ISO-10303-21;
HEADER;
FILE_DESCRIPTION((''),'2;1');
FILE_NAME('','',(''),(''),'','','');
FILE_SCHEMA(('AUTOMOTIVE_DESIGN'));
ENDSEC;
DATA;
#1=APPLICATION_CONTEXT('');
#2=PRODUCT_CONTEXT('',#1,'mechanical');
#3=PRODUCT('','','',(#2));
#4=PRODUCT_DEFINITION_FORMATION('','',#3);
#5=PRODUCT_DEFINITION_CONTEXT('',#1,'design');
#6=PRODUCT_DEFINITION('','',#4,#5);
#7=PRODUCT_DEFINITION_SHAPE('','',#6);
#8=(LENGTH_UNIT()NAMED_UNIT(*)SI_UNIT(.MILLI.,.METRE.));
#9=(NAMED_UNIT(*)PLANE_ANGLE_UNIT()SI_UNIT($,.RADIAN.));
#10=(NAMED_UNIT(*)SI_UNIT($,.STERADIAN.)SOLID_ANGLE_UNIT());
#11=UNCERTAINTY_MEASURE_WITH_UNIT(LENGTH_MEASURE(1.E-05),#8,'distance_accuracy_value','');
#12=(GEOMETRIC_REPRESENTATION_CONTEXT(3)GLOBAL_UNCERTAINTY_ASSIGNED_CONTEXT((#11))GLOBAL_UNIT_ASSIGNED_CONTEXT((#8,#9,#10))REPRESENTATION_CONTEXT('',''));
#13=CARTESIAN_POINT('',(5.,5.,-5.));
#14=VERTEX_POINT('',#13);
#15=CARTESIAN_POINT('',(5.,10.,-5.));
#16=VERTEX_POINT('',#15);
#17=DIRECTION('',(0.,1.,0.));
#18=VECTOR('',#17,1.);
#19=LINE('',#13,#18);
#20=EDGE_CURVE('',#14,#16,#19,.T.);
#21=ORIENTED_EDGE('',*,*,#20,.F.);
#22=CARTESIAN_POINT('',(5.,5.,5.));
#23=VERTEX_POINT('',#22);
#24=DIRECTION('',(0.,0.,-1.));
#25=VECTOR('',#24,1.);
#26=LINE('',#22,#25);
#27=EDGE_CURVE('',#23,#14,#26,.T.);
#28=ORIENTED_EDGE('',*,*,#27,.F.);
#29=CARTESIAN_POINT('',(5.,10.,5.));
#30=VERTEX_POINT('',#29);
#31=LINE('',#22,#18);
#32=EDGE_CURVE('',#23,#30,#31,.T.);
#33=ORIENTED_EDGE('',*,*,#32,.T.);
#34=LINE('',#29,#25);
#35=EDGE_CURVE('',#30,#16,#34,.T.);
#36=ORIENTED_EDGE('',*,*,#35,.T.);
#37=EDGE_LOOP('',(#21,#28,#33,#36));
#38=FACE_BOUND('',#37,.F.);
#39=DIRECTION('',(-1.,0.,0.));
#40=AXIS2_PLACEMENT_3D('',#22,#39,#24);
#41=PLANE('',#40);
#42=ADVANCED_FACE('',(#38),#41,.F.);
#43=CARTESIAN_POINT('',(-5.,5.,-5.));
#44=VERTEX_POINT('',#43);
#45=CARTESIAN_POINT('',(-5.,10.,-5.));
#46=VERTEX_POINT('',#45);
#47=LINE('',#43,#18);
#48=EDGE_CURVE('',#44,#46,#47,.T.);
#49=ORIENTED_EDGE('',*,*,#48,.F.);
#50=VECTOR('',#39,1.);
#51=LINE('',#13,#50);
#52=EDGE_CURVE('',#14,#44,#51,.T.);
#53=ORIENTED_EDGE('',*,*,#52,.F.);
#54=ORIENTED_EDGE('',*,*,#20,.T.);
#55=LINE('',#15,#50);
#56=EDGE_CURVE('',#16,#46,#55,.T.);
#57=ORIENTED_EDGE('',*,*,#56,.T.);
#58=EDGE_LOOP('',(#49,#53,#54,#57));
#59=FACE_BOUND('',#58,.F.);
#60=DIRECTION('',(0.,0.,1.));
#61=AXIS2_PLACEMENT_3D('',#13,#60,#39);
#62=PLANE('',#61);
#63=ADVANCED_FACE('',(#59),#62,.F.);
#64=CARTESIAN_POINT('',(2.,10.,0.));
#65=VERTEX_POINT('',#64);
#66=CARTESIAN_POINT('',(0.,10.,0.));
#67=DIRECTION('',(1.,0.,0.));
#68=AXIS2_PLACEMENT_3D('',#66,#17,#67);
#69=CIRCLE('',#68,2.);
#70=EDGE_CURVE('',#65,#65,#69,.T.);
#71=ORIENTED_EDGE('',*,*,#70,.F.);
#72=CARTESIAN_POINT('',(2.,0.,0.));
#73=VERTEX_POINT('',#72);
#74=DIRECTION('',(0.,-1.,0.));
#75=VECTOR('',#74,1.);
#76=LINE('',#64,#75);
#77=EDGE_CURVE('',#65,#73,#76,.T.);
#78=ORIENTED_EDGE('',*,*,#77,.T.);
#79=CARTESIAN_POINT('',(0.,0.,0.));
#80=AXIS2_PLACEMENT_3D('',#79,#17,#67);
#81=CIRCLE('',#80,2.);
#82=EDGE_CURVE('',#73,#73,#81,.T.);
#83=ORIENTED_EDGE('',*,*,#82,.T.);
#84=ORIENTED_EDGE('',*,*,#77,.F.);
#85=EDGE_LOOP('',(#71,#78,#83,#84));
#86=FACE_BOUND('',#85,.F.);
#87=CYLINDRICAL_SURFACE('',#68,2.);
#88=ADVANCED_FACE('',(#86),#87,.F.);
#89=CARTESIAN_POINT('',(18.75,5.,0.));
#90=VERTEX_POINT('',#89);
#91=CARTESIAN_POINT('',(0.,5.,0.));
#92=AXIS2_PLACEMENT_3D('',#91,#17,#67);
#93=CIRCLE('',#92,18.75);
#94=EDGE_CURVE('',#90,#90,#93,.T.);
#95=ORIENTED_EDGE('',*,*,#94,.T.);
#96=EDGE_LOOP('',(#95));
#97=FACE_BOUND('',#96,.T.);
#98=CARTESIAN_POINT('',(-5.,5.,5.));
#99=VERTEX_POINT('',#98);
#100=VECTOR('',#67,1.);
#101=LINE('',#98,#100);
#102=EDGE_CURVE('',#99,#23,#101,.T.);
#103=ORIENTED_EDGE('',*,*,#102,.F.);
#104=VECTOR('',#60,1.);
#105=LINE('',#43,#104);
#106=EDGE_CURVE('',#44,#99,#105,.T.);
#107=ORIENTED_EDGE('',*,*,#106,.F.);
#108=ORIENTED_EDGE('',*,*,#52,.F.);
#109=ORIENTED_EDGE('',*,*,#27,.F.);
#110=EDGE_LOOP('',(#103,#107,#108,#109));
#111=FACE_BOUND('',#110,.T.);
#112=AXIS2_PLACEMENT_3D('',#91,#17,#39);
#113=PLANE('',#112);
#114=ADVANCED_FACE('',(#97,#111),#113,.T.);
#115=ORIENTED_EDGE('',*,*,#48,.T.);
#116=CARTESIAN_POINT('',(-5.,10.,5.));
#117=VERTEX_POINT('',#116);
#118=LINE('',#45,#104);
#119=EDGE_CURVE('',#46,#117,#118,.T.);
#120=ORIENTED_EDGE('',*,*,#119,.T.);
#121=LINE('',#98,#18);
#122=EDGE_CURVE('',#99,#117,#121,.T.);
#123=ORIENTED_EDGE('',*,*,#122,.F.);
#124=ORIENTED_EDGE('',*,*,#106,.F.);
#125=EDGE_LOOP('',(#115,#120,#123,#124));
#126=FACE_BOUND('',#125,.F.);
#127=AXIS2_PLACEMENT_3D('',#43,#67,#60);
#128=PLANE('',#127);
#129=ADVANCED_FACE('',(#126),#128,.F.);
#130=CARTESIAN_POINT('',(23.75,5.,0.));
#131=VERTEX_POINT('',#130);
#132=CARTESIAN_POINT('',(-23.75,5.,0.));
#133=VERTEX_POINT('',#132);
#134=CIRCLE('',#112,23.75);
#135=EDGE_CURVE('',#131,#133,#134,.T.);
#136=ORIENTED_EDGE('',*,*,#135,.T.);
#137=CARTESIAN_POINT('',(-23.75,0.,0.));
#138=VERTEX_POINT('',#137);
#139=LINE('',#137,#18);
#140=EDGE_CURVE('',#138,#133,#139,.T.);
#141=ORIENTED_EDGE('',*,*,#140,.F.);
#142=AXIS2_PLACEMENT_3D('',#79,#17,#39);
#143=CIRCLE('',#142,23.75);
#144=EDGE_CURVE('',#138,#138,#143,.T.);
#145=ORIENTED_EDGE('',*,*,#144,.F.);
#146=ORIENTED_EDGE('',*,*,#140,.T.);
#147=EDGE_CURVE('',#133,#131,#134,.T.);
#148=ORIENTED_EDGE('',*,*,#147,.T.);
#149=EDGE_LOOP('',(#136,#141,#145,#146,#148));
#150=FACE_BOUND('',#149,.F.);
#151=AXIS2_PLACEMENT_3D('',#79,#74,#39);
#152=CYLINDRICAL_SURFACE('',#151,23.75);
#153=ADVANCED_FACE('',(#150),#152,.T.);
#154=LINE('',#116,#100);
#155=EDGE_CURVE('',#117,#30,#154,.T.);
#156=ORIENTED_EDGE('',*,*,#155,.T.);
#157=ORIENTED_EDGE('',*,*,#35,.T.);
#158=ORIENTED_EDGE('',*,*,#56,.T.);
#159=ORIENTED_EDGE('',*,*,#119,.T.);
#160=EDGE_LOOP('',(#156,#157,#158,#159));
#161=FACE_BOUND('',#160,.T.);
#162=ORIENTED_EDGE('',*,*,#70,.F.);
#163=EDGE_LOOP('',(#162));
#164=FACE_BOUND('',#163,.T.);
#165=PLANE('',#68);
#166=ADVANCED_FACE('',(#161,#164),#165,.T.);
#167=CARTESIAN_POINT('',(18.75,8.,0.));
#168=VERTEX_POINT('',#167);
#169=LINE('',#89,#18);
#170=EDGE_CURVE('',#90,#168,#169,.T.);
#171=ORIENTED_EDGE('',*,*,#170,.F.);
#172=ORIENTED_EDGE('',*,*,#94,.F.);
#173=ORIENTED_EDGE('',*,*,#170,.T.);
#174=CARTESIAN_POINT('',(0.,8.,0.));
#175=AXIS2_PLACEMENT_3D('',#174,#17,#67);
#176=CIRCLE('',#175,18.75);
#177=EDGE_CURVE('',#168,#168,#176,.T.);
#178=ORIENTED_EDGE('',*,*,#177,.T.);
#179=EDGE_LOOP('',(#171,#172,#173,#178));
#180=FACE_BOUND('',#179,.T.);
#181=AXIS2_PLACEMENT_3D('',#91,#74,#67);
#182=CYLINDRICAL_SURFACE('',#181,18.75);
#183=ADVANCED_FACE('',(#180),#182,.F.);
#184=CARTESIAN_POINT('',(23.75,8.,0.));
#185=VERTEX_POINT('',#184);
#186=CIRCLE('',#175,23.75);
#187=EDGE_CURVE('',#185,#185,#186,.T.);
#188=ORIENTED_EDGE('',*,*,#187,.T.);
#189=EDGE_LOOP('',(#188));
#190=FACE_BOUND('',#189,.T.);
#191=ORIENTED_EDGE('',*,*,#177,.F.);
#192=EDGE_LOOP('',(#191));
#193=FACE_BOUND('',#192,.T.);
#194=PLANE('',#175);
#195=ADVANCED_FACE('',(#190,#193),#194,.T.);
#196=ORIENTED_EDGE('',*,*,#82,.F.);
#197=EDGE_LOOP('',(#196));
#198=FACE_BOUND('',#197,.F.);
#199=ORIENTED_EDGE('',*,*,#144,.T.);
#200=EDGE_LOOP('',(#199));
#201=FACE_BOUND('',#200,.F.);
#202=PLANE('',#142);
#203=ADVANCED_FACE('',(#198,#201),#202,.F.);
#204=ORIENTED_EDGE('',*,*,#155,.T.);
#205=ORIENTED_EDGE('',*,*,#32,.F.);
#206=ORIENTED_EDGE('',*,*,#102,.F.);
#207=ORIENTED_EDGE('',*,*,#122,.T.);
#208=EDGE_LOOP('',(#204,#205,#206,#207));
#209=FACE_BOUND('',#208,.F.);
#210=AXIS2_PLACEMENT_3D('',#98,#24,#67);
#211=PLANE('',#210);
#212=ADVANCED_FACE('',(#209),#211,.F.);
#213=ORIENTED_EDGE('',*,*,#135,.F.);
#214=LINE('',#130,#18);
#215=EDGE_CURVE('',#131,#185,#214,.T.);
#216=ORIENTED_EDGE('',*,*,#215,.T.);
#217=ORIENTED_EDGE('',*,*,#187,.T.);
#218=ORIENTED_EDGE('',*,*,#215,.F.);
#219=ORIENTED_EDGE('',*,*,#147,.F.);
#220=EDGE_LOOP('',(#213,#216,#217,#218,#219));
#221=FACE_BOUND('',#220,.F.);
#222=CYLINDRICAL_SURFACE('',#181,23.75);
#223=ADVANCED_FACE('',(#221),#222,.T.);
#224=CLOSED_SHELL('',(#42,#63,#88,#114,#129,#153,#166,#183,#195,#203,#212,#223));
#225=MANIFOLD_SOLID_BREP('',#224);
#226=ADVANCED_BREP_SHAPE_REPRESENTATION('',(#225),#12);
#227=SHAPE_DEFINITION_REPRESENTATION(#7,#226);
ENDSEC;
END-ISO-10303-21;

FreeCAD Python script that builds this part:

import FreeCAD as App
import Part
import Sketcher

V = App.Vector
Q = App.Units.Quantity


def add_polygon(sketch, points):
    """Adds a closed chain of lines whose ends are joined by coincident constraints."""
    first, n = sketch.GeometryCount, len(points)
    for a, b in zip(points, points[1:] + points[:1]):
        sketch.addGeometry(Part.LineSegment(App.Vector(*a, 0), App.Vector(*b, 0)), False)
    for i in range(n):
        sketch.addConstraint(Sketcher.Constraint("Coincident", first + i, 2, first + (i + 1) % n, 1))

doc = App.newDocument("Part")
body = doc.addObject("PartDesign::Body", "Body")

sketch1 = body.newObject("Sketcher::SketchObject", "Sketch")
sketch1.AttachmentSupport = (doc.getObject("XZ_Plane"), [""])
sketch1.MapMode = "FlatFace"
sketch1.addGeometry(Part.Circle(V(0, 0, 0), V(0, 0, 1), 24), False)
sketch1.addConstraint([
    Sketcher.Constraint("Coincident", 0, 3, -1, 1),
    Sketcher.Constraint("Diameter", 0, Q("47.5 mm")),
])
pad1 = body.newObject("PartDesign::Pad", "Pad")
pad1.Profile = sketch1
pad1.Length = 5
pad1.Reversed = True

sketch2 = body.newObject("Sketcher::SketchObject", "Sketch001")
sketch2.AttachmentSupport = (doc.getObject("XZ_Plane"), [""])
sketch2.MapMode = "FlatFace"
sketch2.AttachmentOffset = App.Placement(V(0, 0, -5), App.Rotation())
add_polygon(sketch2, [(-5, -5), (-5, 5), (5, 5), (5, -5)])
sketch2.addConstraint([
    Sketcher.Constraint("Vertical", 0),
    Sketcher.Constraint("Horizontal", 1),
    Sketcher.Constraint("Vertical", 2),
    Sketcher.Constraint("Horizontal", 3),
    Sketcher.Constraint("Symmetric", 0, 2, 2, 2, -1, 1),
    Sketcher.Constraint("Equal", 3, 0),
    Sketcher.Constraint("DistanceX", 1, 1, 1, 2, Q("10 mm")),
])
pad2 = body.newObject("PartDesign::Pad", "Pad001")
pad2.Profile = sketch2
pad2.Length = 5
pad2.Reversed = True

sketch3 = body.newObject("Sketcher::SketchObject", "Sketch002")
sketch3.AttachmentSupport = (doc.getObject("XZ_Plane"), [""])
sketch3.MapMode = "FlatFace"
sketch3.AttachmentOffset = App.Placement(V(0, 0, -5), App.Rotation())
sketch3.addGeometry([
    Part.Circle(V(0, 0, 0), V(0, 0, 1), 24),
    Part.Circle(V(0, 0, 0), V(0, 0, 1), 19),
], False)
sketch3.addConstraint([
    Sketcher.Constraint("Coincident", 0, 3, -1, 1),
    Sketcher.Constraint("Coincident", 1, 3, -1, 1),
    Sketcher.Constraint("Diameter", 0, Q("47.5 mm")),
    Sketcher.Constraint("Diameter", 1, Q("37.5 mm")),
])
pad3 = body.newObject("PartDesign::Pad", "Pad002")
pad3.Profile = sketch3
pad3.Length = 3
pad3.Reversed = True

sketch4 = body.newObject("Sketcher::SketchObject", "Sketch003")
sketch4.AttachmentSupport = (doc.getObject("XZ_Plane"), [""])
sketch4.MapMode = "FlatFace"
sketch4.AttachmentOffset = App.Placement(V(0, 0, -10), App.Rotation())
sketch4.addGeometry(Part.Circle(V(0, 0, 0), V(0, 0, 1), 2), False)
sketch4.addConstraint([
    Sketcher.Constraint("Coincident", 0, 3, -1, 1),
    Sketcher.Constraint("Diameter", 0, Q("4 mm")),
])
pocket1 = body.newObject("PartDesign::Pocket", "Pocket")
pocket1.Profile = sketch4
pocket1.Type = "UpToFirst"
pocket1.Reversed = True

doc.recompute()
